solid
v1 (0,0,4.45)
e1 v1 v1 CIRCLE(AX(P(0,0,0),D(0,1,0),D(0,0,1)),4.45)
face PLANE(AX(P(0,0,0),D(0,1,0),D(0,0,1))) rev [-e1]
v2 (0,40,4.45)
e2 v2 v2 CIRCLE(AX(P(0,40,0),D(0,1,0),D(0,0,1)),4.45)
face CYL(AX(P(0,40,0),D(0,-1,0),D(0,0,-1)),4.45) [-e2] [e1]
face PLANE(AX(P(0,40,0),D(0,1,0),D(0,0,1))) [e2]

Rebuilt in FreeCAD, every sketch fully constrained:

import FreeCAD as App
import Part
import Sketcher
from FreeCAD import Vector
Q = App.Units.Quantity

doc = App.newDocument("Part")
params = doc.addObject("Spreadsheet::Sheet", "Params")
for row, (alias, value) in enumerate([
    ("sketch1_diameter", "8.9 mm"),
    ("pad1_length", "40 mm"),
], start=1):
    params.set(f"A{row}", alias)
    params.set(f"B{row}", "=" + value)
    params.setAlias(f"B{row}", alias)

body = doc.addObject("PartDesign::Body", "Body")

# Sketch on XZ plane
sketch1 = doc.addObject("Sketcher::SketchObject", "Sketch")
body.addObject(sketch1)
sketch1.AttachmentSupport = (doc.XZ_Plane, [""])
sketch1.MapMode = "FlatFace"
sketch1.addGeometry(Part.Circle(Vector(0, 0, 0), Vector(0, 0, 1), 4.5), False)
sketch1.addConstraint([
    Sketcher.Constraint("Coincident", 0, 3, -1, 1),
    Sketcher.Constraint("Diameter", 0, Q("8.9 mm")),
])
sketch1.setExpression("Constraints[1]", "Params.sketch1_diameter")
pad1 = doc.addObject("PartDesign::Pad", "Pad")
body.addObject(pad1)
pad1.Profile = sketch1
pad1.setExpression("Length", "Params.pad1_length")
pad1.Reversed = True

doc.recompute()
